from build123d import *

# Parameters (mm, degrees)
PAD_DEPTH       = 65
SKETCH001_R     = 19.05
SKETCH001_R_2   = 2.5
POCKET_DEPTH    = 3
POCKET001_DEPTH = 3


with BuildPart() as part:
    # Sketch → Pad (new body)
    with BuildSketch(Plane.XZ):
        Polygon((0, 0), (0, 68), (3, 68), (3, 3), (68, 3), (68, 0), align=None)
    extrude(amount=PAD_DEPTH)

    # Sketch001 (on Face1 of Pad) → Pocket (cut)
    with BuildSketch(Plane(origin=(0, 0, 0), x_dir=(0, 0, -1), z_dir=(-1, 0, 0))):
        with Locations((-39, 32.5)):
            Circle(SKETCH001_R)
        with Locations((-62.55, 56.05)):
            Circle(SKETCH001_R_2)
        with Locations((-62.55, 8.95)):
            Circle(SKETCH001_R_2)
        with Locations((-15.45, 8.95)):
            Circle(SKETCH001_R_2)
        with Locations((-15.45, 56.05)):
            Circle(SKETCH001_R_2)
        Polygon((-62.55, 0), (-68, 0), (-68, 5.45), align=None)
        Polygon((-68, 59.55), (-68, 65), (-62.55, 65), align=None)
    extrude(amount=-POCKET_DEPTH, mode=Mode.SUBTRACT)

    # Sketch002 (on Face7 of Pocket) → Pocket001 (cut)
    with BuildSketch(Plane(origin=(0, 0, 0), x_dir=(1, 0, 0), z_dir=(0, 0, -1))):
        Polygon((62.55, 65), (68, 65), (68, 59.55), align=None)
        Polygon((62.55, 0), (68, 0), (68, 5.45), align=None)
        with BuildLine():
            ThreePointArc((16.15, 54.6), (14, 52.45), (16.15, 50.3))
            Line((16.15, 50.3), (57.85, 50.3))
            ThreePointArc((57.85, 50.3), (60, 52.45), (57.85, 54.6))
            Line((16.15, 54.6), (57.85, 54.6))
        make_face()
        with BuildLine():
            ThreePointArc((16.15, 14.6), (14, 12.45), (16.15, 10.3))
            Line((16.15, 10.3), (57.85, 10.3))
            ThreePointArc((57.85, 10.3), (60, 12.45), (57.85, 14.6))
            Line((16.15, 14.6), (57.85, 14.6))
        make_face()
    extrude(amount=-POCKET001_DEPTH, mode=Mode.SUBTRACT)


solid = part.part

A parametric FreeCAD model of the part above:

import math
import FreeCAD as App
import Part
import Sketcher

doc = App.newDocument("Part")
body = doc.addObject("PartDesign::Body", "Body")

# Sketch on XZ plane
sketch1 = doc.addObject("Sketcher::SketchObject", "Sketch")
body.addObject(sketch1)
sketch1.AttachmentSupport = (doc.XZ_Plane, [""])
sketch1.MapMode = "FlatFace"
sketch1.addGeometry([
    Part.LineSegment(App.Vector(0, 68, 0), App.Vector(0, 0, 0)),  # 0
    Part.LineSegment(App.Vector(0, 0, 0), App.Vector(68, 0, 0)),  # 1
    Part.LineSegment(App.Vector(68, 0, 0), App.Vector(68, 3, 0)),  # 2
    Part.LineSegment(App.Vector(68, 3, 0), App.Vector(3, 3, 0)),  # 3
    Part.LineSegment(App.Vector(3, 3, 0), App.Vector(3, 68, 0)),  # 4
    Part.LineSegment(App.Vector(3, 68, 0), App.Vector(0, 68, 0)),  # 5
], False)
sketch1.addConstraint([
    Sketcher.Constraint("Coincident", 0, 2, 1, 1),
    Sketcher.Constraint("Coincident", 1, 2, 2, 1),
    Sketcher.Constraint("Coincident", 2, 2, 3, 1),
    Sketcher.Constraint("Coincident", 3, 2, 4, 1),
    Sketcher.Constraint("Coincident", 4, 2, 5, 1),
    Sketcher.Constraint("Coincident", 5, 2, 0, 1),
    Sketcher.Constraint("Vertical", 0),
    Sketcher.Constraint("Horizontal", 1),
    Sketcher.Constraint("Vertical", 2),
    Sketcher.Constraint("Horizontal", 3),
    Sketcher.Constraint("Vertical", 4),
    Sketcher.Constraint("Horizontal", 5),
    Sketcher.Constraint("Coincident", 0, 2, -1, 1),
    Sketcher.Constraint("Equal", 1, 0),
    Sketcher.Constraint("Equal", 5, 2),
    Sketcher.Constraint("DistanceX", 1, 1, 1, 2, 68.0),
    Sketcher.Constraint("DistanceX", 3, 2, 3, 1, 65.0),
])
pad1 = doc.addObject("PartDesign::Pad", "Pad")
body.addObject(pad1)
pad1.Profile = sketch1
pad1.Length = 65

# Sketch on YZ plane
sketch2 = doc.addObject("Sketcher::SketchObject", "Sketch001")
body.addObject(sketch2)
sketch2.AttachmentSupport = (doc.YZ_Plane, [""])
sketch2.MapMode = "FlatFace"
sketch2.addGeometry([
    Part.Circle(App.Vector(-32.5, 39, 0), App.Vector(0, 0, 1), 19.05),  # 0
    Part.Circle(App.Vector(-56.05, 62.55, 0), App.Vector(0, 0, 1), 2.5),  # 1
    Part.Circle(App.Vector(-8.95, 62.55, 0), App.Vector(0, 0, 1), 2.5),  # 2
    Part.Circle(App.Vector(-8.95, 15.45, 0), App.Vector(0, 0, 1), 2.5),  # 3
    Part.Circle(App.Vector(-56.05, 15.45, 0), App.Vector(0, 0, 1), 2.5),  # 4
    Part.LineSegment(App.Vector(0, 68, 0), App.Vector(0, 62.55, 0)),  # 5
    Part.LineSegment(App.Vector(0, 62.55, 0), App.Vector(-5.45, 68, 0)),  # 6
    Part.LineSegment(App.Vector(-5.45, 68, 0), App.Vector(0, 68, 0)),  # 7
    Part.LineSegment(App.Vector(-65, 68, 0), App.Vector(-59.55, 68, 0)),  # 8
    Part.LineSegment(App.Vector(-59.55, 68, 0), App.Vector(-65, 62.55, 0)),  # 9
    Part.LineSegment(App.Vector(-65, 62.55, 0), App.Vector(-65, 68, 0)),  # 10
], False)
sketch2.addConstraint([
    Sketcher.Constraint("Coincident", 5, 2, 6, 1),
    Sketcher.Constraint("Coincident", 6, 2, 7, 1),
    Sketcher.Constraint("Coincident", 7, 2, 5, 1),
    Sketcher.Constraint("Coincident", 8, 2, 9, 1),
    Sketcher.Constraint("Coincident", 9, 2, 10, 1),
    Sketcher.Constraint("Coincident", 10, 2, 8, 1),
    Sketcher.Constraint("Vertical", 5),
    Sketcher.Constraint("Horizontal", 7),
    Sketcher.Constraint("Horizontal", 8),
    Sketcher.Constraint("Vertical", 10),
    Sketcher.Constraint("Equal", 1, 2),
    Sketcher.Constraint("Equal", 2, 3),
    Sketcher.Constraint("Equal", 3, 4),
    Sketcher.Constraint("PointOnObject", 5, 2, -2),
    Sketcher.Constraint("Perpendicular", 6, 9),
    Sketcher.Constraint("Horizontal", 1, 3, 2, 3),
    Sketcher.Constraint("Horizontal", 3, 3, 4, 3),
    Sketcher.Constraint("Horizontal", 2, 3, 5, 2),
    Sketcher.Constraint("Horizontal", 7, 2, 8, 2),
    Sketcher.Constraint("Horizontal", 5, 2, 9, 2),
    Sketcher.Constraint("Vertical", 2, 3, 3, 3),
    Sketcher.Constraint("Vertical", 1, 3, 4, 3),
    Sketcher.Constraint("Equal", 7, 8),
    Sketcher.Constraint("Diameter", 1, 5.0),
    Sketcher.Constraint("Diameter", 0, 38.1),
    Sketcher.Constraint("DistanceY", -1, 1, 0, 3, 39.0),
    Sketcher.Constraint("DistanceY", -1, 1, 6, 2, 68.0),
    Sketcher.Constraint("DistanceX", 9, 2, -1, 1, 65.0),
    Sketcher.Constraint("DistanceX", 7, 1, 7, 2, 5.45),
    Sketcher.Constraint("DistanceX", 0, 3, -1, 1, 32.5),
    Sketcher.Constraint("DistanceX", 1, 3, 2, 3, 47.1),
    Sketcher.Constraint("DistanceY", 3, 3, 2, 3, 47.1),
    Sketcher.Constraint("DistanceX", 2, 3, 6, 2, 3.5),
])
pocket1 = doc.addObject("PartDesign::Pocket", "Pocket")
body.addObject(pocket1)
pocket1.Profile = sketch2
pocket1.Length = 3
pocket1.Reversed = True

# Sketch on XY plane
sketch3 = doc.addObject("Sketcher::SketchObject", "Sketch002")
body.addObject(sketch3)
sketch3.AttachmentSupport = (doc.XY_Plane, [""])
sketch3.MapMode = "FlatFace"
sketch3.addGeometry([
    Part.LineSegment(App.Vector(68, -65, 0), App.Vector(62.55, -65, 0)),  # 0
    Part.LineSegment(App.Vector(62.55, -65, 0), App.Vector(68, -59.55, 0)),  # 1
    Part.LineSegment(App.Vector(68, -59.55, 0), App.Vector(68, -65, 0)),  # 2
    Part.LineSegment(App.Vector(62.55, 0, 0), App.Vector(68, 0, 0)),  # 3
    Part.LineSegment(App.Vector(68, 0, 0), App.Vector(68, -5.45, 0)),  # 4
    Part.LineSegment(App.Vector(68, -5.45, 0), App.Vector(62.55, 0, 0)),  # 5
    Part.ArcOfCircle(Part.Circle(App.Vector(16.15, -52.45, 0), App.Vector(0, 0, 1), 2.15), math.radians(90), math.radians(270)),  # 6
    Part.LineSegment(App.Vector(16.15, -50.3, 0), App.Vector(57.85, -50.3, 0)),  # 7
    Part.ArcOfCircle(Part.Circle(App.Vector(57.85, -52.45, 0), App.Vector(0, 0, 1), 2.15), math.radians(-90), math.radians(90)),  # 8
    Part.LineSegment(App.Vector(57.85, -54.6, 0), App.Vector(16.15, -54.6, 0)),  # 9
    Part.ArcOfCircle(Part.Circle(App.Vector(16.15, -12.45, 0), App.Vector(0, 0, 1), 2.15), math.radians(90), math.radians(270)),  # 10
    Part.LineSegment(App.Vector(16.15, -10.3, 0), App.Vector(57.85, -10.3, 0)),  # 11
    Part.ArcOfCircle(Part.Circle(App.Vector(57.85, -12.45, 0), App.Vector(0, 0, 1), 2.15), math.radians(-90), math.radians(90)),  # 12
    Part.LineSegment(App.Vector(57.85, -14.6, 0), App.Vector(16.15, -14.6, 0)),  # 13
], False)
sketch3.addConstraint([
    Sketcher.Constraint("Coincident", 0, 2, 1, 1),
    Sketcher.Constraint("Coincident", 1, 2, 2, 1),
    Sketcher.Constraint("Coincident", 2, 2, 0, 1),
    Sketcher.Constraint("Coincident", 3, 2, 4, 1),
    Sketcher.Constraint("Coincident", 4, 2, 5, 1),
    Sketcher.Constraint("Coincident", 5, 2, 3, 1),
    Sketcher.Constraint("Tangent", 6, 1, 7, 1),
    Sketcher.Constraint("Tangent", 7, 2, 8, 2),
    Sketcher.Constraint("Tangent", 8, 1, 9, 1),
    Sketcher.Constraint("Tangent", 9, 2, 6, 2),
    Sketcher.Constraint("Tangent", 10, 1, 11, 1),
    Sketcher.Constraint("Tangent", 11, 2, 12, 2),
    Sketcher.Constraint("Tangent", 12, 1, 13, 1),
    Sketcher.Constraint("Tangent", 13, 2, 10, 2),
    Sketcher.Constraint("Horizontal", 0),
    Sketcher.Constraint("Vertical", 2),
    Sketcher.Constraint("Horizontal", 3),
    Sketcher.Constraint("Vertical", 4),
    Sketcher.Constraint("Horizontal", 7),
    Sketcher.Constraint("Horizontal", 9),
    Sketcher.Constraint("Horizontal", 11),
    Sketcher.Constraint("Horizontal", 13),
    Sketcher.Constraint("Equal", 8, 10),
    Sketcher.Constraint("PointOnObject", 3, 2, -1),
    Sketcher.Constraint("Perpendicular", 1, 5),
    Sketcher.Constraint("Vertical", 6, 3, 10, 3),
    Sketcher.Constraint("Vertical", 8, 3, 12, 3),
    Sketcher.Constraint("Vertical", 2, 2, 3, 2),
    Sketcher.Constraint("Vertical", 0, 2, 5, 2),
    Sketcher.Constraint("Equal", 3, 2),
    Sketcher.Constraint("Radius", 6, 2.15),
    Sketcher.Constraint("DistanceX", 7, 1, 7, 2, 41.7),
    Sketcher.Constraint("DistanceY", 0, 2, -1, 1, 65.0),
    Sketcher.Constraint("DistanceX", -1, 1, 1, 2, 68.0),
    Sketcher.Constraint("DistanceY", 6, 3, 10, 3, 40.0),
    Sketcher.Constraint("DistanceY", 12, 3, 4, 2, 7.0),
    Sketcher.Constraint("DistanceX", 0, 2, 0, 1, 5.45),
    Sketcher.Constraint("DistanceX", 8, 3, 0, 2, 4.7),
])
pocket2 = doc.addObject("PartDesign::Pocket", "Pocket001")
body.addObject(pocket2)
pocket2.Profile = sketch3
pocket2.Length = 3
pocket2.Reversed = True

doc.recompute()
